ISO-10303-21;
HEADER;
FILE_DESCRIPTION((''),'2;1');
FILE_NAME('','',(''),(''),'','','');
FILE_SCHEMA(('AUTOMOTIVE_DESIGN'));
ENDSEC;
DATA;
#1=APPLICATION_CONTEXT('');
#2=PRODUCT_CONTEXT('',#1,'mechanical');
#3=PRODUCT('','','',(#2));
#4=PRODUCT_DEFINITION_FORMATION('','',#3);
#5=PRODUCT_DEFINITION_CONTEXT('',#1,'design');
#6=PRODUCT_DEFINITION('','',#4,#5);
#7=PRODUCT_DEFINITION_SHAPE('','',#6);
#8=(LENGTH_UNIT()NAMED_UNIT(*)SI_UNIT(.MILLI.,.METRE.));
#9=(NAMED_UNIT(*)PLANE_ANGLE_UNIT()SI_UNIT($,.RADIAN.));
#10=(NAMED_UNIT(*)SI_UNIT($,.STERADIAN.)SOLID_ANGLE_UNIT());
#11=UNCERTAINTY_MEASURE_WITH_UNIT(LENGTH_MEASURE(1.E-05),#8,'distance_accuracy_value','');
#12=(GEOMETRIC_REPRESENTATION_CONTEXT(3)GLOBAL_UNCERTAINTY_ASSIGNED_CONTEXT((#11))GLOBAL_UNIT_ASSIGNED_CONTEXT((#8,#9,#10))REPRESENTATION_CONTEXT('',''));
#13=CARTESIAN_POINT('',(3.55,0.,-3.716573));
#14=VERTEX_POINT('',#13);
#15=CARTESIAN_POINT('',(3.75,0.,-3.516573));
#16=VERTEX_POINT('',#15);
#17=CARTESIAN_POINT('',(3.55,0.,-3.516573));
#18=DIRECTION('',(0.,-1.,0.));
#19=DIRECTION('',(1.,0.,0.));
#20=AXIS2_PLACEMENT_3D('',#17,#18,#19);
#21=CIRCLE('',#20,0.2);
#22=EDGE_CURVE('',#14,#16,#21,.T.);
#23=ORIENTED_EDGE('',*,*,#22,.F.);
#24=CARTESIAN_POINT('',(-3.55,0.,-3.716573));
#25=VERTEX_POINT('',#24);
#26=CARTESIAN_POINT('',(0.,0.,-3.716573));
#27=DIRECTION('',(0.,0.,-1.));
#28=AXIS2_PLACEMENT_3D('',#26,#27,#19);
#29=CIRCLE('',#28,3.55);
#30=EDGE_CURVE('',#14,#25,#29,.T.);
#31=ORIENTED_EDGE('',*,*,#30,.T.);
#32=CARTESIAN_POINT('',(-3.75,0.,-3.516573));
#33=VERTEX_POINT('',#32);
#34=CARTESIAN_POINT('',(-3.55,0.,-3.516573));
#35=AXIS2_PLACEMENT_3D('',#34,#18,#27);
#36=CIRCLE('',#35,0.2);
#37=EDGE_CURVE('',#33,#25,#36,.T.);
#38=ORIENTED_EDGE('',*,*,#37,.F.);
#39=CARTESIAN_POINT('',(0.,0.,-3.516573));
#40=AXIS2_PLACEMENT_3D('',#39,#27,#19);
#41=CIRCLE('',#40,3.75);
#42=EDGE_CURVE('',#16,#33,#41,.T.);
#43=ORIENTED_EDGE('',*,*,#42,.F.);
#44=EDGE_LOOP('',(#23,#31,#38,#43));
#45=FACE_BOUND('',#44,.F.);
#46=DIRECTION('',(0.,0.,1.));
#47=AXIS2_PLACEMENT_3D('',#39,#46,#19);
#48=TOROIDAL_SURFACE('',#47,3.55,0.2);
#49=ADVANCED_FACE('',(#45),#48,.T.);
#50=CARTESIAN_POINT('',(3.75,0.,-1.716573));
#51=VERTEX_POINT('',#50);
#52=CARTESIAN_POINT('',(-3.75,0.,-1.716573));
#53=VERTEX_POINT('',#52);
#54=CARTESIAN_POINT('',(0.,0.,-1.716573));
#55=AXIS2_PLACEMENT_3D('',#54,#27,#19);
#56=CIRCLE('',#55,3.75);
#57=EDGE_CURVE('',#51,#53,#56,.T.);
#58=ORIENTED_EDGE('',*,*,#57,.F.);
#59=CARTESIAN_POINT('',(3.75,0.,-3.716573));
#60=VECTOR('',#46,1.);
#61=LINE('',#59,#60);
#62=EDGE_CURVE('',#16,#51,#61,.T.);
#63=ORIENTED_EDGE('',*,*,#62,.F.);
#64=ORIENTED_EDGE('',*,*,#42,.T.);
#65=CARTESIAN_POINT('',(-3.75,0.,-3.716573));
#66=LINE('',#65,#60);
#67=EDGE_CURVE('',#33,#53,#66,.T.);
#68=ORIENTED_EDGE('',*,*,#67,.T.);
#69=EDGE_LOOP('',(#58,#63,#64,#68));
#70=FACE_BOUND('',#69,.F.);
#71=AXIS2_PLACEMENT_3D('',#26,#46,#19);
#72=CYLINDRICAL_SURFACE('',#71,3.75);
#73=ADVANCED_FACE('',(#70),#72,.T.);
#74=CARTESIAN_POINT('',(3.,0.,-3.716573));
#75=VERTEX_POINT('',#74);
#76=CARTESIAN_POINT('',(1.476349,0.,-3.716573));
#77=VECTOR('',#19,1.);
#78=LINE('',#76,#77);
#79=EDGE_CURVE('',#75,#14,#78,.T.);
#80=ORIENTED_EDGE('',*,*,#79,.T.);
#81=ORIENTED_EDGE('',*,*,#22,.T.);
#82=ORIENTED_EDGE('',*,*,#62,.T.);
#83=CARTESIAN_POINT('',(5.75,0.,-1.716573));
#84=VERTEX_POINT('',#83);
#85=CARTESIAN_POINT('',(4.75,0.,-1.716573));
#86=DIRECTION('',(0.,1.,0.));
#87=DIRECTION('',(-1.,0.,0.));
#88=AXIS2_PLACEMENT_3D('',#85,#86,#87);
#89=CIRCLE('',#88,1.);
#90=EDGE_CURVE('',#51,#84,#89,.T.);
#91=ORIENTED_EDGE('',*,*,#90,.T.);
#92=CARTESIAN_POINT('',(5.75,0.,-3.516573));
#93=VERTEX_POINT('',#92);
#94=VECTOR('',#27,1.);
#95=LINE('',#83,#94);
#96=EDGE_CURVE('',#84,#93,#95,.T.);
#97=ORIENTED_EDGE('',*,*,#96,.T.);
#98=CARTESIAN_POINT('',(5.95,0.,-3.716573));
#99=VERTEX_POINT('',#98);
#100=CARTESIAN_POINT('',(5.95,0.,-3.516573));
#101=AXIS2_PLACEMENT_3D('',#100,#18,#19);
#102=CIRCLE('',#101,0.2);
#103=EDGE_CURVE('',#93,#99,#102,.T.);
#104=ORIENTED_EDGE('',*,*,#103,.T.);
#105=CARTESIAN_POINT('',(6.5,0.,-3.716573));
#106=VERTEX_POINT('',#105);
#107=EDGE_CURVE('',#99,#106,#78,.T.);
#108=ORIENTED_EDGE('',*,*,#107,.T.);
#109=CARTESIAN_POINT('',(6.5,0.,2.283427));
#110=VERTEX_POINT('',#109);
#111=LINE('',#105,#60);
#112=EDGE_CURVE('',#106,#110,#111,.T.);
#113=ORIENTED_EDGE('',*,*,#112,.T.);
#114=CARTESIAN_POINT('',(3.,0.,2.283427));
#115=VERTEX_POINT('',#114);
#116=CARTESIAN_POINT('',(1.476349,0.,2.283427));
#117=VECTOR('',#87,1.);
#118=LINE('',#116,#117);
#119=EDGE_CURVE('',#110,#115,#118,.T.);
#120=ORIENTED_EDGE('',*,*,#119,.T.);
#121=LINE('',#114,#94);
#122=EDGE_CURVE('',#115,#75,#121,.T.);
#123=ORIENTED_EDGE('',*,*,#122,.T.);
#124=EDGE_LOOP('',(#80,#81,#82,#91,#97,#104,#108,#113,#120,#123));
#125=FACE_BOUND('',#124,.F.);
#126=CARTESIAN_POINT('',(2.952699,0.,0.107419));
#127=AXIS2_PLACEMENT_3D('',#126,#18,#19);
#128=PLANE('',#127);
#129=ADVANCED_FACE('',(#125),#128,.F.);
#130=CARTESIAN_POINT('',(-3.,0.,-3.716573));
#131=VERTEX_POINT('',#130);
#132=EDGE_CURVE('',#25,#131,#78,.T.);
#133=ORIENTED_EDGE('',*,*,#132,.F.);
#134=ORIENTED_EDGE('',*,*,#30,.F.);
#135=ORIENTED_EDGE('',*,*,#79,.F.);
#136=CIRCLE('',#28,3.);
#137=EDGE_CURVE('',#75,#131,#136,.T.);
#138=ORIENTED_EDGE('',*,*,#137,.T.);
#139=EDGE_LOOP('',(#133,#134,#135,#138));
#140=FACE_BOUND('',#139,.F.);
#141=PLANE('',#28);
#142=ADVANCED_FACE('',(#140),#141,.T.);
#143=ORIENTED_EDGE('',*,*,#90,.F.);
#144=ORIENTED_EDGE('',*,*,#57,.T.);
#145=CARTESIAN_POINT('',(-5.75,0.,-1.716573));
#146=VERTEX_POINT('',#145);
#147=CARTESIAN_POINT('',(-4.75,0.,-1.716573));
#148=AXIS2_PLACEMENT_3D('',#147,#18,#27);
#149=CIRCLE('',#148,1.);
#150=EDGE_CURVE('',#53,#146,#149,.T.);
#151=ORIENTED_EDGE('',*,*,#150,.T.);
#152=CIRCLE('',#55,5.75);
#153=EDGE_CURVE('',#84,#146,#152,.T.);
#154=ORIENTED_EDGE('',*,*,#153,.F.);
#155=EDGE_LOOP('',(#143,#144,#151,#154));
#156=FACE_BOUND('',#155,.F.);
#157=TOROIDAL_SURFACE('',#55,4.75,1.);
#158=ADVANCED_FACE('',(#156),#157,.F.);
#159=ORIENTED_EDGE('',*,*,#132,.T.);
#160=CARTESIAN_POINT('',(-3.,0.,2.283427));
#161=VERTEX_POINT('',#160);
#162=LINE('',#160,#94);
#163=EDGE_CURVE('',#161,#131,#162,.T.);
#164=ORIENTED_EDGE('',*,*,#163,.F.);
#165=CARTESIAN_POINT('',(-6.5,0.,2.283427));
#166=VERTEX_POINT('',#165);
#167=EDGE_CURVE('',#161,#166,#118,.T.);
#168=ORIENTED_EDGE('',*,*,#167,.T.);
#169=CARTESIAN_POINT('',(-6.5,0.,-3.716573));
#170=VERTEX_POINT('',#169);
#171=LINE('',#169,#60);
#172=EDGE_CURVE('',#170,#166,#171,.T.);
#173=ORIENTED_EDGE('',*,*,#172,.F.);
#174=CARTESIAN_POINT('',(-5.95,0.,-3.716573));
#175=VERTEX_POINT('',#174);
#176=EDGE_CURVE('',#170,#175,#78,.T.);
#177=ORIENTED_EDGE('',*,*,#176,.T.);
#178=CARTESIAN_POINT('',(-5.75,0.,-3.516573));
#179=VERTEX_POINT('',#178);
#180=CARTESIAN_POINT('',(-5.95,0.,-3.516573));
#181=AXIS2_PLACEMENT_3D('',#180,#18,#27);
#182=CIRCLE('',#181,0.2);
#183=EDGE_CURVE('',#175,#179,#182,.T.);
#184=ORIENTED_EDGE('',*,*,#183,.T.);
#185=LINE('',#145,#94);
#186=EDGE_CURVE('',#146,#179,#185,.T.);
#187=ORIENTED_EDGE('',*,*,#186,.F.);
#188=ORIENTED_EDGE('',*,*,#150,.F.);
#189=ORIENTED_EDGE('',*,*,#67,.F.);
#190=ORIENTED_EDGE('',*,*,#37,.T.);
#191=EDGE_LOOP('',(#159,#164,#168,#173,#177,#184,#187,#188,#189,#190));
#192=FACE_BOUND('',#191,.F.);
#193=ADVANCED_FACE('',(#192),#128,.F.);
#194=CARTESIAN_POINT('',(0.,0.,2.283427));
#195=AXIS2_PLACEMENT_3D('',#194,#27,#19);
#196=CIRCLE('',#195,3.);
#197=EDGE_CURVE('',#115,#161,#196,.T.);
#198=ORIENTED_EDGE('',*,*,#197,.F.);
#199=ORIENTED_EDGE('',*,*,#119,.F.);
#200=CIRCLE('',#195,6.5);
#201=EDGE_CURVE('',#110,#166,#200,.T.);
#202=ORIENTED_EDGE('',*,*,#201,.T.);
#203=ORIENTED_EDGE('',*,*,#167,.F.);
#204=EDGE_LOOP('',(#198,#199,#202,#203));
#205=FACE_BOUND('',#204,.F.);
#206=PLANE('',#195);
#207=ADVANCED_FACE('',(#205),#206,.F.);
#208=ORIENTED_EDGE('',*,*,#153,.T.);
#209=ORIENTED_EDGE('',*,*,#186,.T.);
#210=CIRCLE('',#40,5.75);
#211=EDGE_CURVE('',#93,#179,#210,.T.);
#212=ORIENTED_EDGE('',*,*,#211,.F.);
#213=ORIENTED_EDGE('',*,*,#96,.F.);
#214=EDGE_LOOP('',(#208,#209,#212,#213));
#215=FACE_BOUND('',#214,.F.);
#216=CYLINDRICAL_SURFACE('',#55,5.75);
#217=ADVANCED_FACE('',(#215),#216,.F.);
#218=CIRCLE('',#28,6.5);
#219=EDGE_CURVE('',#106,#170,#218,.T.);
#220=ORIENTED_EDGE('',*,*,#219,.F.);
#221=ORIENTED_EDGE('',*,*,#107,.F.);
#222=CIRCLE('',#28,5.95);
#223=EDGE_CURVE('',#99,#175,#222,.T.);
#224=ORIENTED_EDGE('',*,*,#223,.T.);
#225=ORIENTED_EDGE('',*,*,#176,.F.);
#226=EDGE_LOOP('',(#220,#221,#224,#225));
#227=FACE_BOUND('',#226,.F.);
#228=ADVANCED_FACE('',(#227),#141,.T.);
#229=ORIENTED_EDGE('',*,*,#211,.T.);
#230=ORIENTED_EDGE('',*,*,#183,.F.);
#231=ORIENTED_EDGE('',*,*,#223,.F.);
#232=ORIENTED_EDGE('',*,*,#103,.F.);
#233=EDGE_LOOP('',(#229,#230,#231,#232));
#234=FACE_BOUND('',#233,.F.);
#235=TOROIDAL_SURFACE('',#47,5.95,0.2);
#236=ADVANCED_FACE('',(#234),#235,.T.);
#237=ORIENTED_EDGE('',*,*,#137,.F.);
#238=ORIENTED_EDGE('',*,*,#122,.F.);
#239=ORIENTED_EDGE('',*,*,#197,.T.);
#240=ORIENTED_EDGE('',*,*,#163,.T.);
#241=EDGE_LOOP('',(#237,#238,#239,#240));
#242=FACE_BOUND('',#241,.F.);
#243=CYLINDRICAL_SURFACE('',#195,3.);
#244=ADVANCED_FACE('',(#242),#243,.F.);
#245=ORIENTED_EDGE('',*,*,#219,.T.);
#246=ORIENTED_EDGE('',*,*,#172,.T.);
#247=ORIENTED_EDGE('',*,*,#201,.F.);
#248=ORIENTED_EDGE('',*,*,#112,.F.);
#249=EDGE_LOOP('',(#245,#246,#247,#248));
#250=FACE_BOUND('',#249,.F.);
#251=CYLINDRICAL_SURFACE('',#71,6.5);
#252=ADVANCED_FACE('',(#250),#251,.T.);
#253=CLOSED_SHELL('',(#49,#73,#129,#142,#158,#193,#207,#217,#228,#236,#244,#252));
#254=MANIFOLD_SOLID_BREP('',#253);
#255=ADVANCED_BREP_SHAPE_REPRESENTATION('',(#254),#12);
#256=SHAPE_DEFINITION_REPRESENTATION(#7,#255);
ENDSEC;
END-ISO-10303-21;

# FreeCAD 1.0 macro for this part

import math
import FreeCAD as App
import Part
import Sketcher

V = App.Vector


def edges_at(feature, points):
    """Names of the edges that pass closest to the given points."""
    edges = feature.Shape.Edges
    near = lambda p: min(range(len(edges)), key=lambda i: edges[i].distToShape(Part.Vertex(*p))[0])
    return sorted({f"Edge{near(p) + 1}" for p in points})


def add_polygon(sketch, points):
    """Adds a closed chain of lines whose ends are joined by coincident constraints."""
    first, n = sketch.GeometryCount, len(points)
    for a, b in zip(points, points[1:] + points[:1]):
        sketch.addGeometry(Part.LineSegment(App.Vector(*a, 0), App.Vector(*b, 0)), False)
    for i in range(n):
        sketch.addConstraint(Sketcher.Constraint("Coincident", first + i, 2, first + (i + 1) % n, 1))

doc = App.newDocument("Part")
body = doc.addObject("PartDesign::Body", "Body")

sketch1 = body.newObject("Sketcher::SketchObject", "Sketch")
sketch1.AttachmentSupport = (doc.getObject("XZ_Plane"), [""])
sketch1.MapMode = "FlatFace"
sketch1.addGeometry([
    Part.LineSegment(V(6.5, 2.283427, 0), V(3, 2.283427, 0)),
    Part.LineSegment(V(3, 2.283427, 0), V(3, -3.716573, 0)),
    Part.LineSegment(V(3, -3.716573, 0), V(3.75, -3.716573, 0)),
    Part.LineSegment(V(3.75, -3.716573, 0), V(3.75, -1.716573, 0)),
    Part.ArcOfCircle(Part.Circle(V(4.75, -1.716573, 0), V(0, 0, 1), 1), math.radians(0), math.radians(180)),
    Part.LineSegment(V(5.75, -1.716573, 0), V(5.75, -3.716573, 0)),
    Part.LineSegment(V(5.75, -3.716573, 0), V(6.5, -3.716573, 0)),
    Part.LineSegment(V(6.5, -3.716573, 0), V(6.5, 2.283427, 0)),
], False)
sketch1.addConstraint([
    Sketcher.Constraint("Coincident", 0, 2, 1, 1),
    Sketcher.Constraint("Coincident", 1, 2, 2, 1),
    Sketcher.Constraint("Coincident", 2, 2, 3, 1),
    Sketcher.Constraint("Tangent", 3, 2, 4, 2),
    Sketcher.Constraint("Tangent", 4, 1, 5, 1),
    Sketcher.Constraint("Coincident", 5, 2, 6, 1),
    Sketcher.Constraint("Coincident", 6, 2, 7, 1),
    Sketcher.Constraint("Coincident", 7, 2, 0, 1),
    Sketcher.Constraint("Horizontal", 0),
    Sketcher.Constraint("Vertical", 1),
    Sketcher.Constraint("Horizontal", 2),
    Sketcher.Constraint("Vertical", 3),
    Sketcher.Constraint("Vertical", 5),
    Sketcher.Constraint("Horizontal", 6),
    Sketcher.Constraint("Vertical", 7),
    Sketcher.Constraint("Horizontal", 2, 2, 5, 2),
    Sketcher.Constraint("Equal", 2, 6),
    Sketcher.Constraint("Radius", 4, 1.0),
    Sketcher.Constraint("DistanceY", 1, 2, 1, 1, 6.0),
    Sketcher.Constraint("DistanceY", 3, 1, 3, 2, 2.0),
    Sketcher.Constraint("DistanceX", 0, 2, 0, 1, 3.5),
    Sketcher.Constraint("DistanceX", -1, 1, 0, 2, 3.0),
    Sketcher.Constraint("DistanceY", 4, 3, -1, 1, 1.716573),
])
revolution = body.newObject("PartDesign::Revolution", "Revolution")
revolution.Profile = sketch1
revolution.ReferenceAxis = (sketch1, ["V_Axis"])
revolution.Angle = 360
doc.recompute()

fillet = body.newObject("PartDesign::Fillet", "Fillet")
fillet.Base = (revolution, edges_at(revolution, [(-5.75, 0, -3.717), (-3.75, 0, -3.717)]))
fillet.Radius = 0.2

sketch2 = body.newObject("Sketcher::SketchObject", "Sketch001")
sketch2.AttachmentSupport = (doc.getObject("XZ_Plane"), [""])
sketch2.MapMode = "FlatFace"
add_polygon(sketch2, [(-14.809164, 15.512529), (-14.809164, -15.297691), (20.714561, -15.297691), (20.714561, 15.512529)])
sketch2.addConstraint([
    Sketcher.Constraint("Vertical", 0),
    Sketcher.Constraint("Horizontal", 1),
    Sketcher.Constraint("Vertical", 2),
    Sketcher.Constraint("Horizontal", 3),
    Sketcher.Constraint("DistanceY", 0, 2, 0, 1, 30.81022),
    Sketcher.Constraint("DistanceX", 1, 1, 1, 2, 35.523725),
    Sketcher.Constraint("DistanceY", 0, 2, -1, 1, 15.297691),
    Sketcher.Constraint("DistanceX", -1, 1, 1, 2, 20.714561),
])
pocket1 = body.newObject("PartDesign::Pocket", "Pocket")
pocket1.Profile = sketch2
pocket1.Length = 25

doc.recompute()
